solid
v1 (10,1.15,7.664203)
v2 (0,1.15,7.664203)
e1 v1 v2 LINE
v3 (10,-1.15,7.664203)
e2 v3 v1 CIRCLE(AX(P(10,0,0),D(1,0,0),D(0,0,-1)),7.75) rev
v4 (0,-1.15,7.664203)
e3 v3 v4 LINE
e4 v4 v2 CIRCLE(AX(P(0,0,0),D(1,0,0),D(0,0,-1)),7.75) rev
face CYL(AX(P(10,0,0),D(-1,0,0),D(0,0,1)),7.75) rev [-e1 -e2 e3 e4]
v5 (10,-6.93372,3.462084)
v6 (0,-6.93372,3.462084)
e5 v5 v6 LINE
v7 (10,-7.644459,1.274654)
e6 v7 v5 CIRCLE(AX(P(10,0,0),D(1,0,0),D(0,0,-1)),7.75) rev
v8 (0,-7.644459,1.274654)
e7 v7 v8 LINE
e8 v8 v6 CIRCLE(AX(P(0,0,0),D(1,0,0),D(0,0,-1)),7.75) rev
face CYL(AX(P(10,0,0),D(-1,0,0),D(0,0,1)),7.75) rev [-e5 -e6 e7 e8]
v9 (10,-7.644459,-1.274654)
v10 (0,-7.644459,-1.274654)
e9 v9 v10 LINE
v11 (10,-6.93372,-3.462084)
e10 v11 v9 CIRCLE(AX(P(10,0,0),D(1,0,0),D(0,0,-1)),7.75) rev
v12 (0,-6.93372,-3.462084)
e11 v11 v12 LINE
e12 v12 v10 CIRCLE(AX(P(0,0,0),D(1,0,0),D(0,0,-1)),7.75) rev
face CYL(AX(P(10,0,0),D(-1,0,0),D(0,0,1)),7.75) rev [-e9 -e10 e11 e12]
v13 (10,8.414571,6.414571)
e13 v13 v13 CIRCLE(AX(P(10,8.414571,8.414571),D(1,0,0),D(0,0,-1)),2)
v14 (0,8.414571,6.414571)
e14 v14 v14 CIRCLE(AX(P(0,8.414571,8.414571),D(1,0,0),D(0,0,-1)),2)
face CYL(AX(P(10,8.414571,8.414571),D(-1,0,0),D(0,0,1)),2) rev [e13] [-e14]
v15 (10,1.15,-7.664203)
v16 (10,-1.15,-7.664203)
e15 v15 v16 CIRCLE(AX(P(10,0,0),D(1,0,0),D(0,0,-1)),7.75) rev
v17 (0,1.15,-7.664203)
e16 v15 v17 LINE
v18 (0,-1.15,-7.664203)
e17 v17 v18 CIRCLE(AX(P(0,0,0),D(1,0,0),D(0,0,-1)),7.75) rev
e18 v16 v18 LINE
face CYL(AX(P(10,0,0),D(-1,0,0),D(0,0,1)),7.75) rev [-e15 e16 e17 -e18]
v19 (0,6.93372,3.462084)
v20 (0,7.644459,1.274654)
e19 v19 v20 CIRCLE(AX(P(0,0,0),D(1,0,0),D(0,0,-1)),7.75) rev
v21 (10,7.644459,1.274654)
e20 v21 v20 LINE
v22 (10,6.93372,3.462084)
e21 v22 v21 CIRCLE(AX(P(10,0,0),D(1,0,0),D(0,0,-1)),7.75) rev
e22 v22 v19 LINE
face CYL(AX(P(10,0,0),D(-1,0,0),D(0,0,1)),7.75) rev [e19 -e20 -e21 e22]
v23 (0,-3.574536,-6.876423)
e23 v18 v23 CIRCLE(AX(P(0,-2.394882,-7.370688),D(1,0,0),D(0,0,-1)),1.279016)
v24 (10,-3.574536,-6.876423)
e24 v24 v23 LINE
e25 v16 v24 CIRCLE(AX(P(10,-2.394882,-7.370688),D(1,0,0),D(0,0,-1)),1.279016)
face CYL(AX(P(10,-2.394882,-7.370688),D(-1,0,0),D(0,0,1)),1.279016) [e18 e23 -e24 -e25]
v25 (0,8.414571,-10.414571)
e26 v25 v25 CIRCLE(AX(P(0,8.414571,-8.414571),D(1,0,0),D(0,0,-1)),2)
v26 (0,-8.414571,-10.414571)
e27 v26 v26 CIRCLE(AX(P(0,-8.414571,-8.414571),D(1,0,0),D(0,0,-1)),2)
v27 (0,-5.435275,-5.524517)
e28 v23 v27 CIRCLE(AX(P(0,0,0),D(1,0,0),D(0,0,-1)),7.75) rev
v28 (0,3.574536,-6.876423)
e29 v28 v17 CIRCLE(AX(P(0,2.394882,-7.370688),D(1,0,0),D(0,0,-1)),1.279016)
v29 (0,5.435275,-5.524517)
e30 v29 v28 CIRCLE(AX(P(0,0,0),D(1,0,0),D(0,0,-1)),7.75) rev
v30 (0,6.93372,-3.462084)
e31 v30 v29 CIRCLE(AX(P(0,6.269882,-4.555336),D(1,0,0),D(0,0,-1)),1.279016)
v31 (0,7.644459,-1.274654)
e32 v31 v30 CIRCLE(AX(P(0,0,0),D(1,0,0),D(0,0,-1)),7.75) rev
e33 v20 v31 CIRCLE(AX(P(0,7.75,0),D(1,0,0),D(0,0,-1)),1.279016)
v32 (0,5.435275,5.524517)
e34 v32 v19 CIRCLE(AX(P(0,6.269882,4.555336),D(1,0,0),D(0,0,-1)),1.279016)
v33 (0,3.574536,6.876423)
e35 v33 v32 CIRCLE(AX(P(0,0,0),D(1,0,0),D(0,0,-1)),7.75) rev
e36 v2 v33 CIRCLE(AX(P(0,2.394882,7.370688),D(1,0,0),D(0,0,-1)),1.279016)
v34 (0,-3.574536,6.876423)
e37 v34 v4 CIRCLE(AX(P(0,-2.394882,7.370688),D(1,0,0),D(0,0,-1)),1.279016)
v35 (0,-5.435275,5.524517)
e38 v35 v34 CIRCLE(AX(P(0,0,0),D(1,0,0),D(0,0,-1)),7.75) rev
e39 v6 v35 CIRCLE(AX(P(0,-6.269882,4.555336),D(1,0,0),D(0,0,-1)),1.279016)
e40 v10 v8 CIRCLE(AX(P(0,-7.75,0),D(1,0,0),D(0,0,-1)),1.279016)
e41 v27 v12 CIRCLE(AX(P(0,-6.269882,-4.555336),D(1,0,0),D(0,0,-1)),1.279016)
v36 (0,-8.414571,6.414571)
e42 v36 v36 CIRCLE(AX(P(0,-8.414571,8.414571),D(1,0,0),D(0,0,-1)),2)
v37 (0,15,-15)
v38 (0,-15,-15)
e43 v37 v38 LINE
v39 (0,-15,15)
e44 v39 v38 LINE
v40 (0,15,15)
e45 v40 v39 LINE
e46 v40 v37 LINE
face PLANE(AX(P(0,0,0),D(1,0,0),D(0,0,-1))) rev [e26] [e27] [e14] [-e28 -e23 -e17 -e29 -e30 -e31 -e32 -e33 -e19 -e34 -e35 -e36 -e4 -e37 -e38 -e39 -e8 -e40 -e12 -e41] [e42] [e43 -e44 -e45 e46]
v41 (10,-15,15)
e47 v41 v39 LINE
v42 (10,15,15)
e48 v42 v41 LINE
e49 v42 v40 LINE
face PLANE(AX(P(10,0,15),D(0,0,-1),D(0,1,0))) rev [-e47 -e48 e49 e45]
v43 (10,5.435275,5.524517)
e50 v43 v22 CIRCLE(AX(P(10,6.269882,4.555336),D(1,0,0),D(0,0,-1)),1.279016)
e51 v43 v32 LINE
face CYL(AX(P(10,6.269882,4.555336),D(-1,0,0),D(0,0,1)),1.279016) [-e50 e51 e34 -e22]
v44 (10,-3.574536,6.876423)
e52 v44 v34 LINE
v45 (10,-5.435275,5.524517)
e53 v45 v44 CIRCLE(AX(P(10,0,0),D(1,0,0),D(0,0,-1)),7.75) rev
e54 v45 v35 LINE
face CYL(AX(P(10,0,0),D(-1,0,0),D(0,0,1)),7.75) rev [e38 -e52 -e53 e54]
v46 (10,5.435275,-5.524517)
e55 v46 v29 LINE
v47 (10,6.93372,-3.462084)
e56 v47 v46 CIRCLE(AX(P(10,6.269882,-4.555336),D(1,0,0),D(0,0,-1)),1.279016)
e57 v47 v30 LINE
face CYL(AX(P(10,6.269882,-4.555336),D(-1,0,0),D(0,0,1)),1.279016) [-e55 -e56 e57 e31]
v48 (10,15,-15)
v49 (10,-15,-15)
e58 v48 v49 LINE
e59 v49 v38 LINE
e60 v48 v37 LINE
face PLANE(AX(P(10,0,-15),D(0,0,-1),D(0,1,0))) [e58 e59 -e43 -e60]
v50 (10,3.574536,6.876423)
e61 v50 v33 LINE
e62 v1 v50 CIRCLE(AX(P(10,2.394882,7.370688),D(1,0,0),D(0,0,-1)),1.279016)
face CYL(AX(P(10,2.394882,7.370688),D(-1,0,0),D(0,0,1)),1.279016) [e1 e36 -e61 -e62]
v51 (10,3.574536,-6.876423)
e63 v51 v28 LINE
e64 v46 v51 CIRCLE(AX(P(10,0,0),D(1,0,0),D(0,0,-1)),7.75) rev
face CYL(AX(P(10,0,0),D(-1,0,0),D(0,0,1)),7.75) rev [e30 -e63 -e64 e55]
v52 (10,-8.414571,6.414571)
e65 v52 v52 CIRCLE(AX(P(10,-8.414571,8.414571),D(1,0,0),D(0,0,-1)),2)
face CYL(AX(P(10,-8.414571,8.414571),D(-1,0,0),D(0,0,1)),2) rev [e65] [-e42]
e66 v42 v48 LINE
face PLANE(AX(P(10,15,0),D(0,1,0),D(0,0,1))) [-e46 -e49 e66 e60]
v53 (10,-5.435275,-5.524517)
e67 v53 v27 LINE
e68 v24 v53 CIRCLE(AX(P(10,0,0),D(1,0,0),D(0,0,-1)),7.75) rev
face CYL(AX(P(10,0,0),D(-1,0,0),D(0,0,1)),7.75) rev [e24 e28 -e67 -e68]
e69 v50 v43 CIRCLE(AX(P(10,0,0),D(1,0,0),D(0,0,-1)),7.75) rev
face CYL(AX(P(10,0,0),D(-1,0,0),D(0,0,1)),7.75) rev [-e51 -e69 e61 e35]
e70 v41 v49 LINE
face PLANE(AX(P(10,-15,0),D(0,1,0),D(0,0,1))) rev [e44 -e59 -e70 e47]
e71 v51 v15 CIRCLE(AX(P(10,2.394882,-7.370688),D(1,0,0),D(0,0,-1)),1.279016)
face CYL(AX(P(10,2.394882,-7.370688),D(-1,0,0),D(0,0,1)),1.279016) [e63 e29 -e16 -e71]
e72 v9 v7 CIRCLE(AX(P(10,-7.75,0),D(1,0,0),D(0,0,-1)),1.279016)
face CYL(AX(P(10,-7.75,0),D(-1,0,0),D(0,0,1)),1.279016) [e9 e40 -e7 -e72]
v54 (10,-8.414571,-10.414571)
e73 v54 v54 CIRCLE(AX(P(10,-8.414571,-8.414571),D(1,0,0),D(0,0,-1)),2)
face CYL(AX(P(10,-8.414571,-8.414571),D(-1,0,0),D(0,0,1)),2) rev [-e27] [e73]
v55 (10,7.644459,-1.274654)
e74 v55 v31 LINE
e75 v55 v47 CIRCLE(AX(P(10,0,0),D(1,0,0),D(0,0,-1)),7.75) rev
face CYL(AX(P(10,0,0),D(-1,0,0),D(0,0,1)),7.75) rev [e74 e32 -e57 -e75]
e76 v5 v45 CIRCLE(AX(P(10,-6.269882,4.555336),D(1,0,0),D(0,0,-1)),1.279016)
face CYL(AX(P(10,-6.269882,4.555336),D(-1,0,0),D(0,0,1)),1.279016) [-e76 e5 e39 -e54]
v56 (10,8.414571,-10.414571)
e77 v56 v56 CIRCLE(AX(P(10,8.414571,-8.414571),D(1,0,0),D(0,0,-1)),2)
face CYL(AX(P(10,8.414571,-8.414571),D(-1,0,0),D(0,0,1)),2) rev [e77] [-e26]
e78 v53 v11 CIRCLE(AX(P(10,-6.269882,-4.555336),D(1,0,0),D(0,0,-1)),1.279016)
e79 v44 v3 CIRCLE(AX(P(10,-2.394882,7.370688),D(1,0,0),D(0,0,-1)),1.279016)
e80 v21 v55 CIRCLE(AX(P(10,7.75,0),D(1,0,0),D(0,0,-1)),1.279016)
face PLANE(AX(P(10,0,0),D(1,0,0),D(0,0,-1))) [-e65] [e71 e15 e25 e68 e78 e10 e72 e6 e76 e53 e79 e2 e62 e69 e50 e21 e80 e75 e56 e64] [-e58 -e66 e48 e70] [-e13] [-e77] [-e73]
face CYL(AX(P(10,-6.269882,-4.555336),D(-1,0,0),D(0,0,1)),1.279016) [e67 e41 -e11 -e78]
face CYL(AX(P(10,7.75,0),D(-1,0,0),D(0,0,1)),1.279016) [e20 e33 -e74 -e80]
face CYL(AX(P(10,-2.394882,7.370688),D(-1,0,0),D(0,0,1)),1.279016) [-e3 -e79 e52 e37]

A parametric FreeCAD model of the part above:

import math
import FreeCAD as App
import Part
import Sketcher

V = App.Vector
Q = App.Units.Quantity

doc = App.newDocument("Part")
body = doc.addObject("PartDesign::Body", "Body")

sketch1 = doc.addObject("Sketcher::SketchObject", "Sketch")
body.addObject(sketch1)
sketch1.AttachmentSupport = (doc.YZ_Plane, [""])
sketch1.MapMode = "FlatFace"
sketch1.addGeometry(Part.LineSegment(V(15, 15, 0), V(-15, 15, 0)), False)
sketch1.addGeometry(Part.LineSegment(V(-15, 15, 0), V(-15, -15, 0)), False)
sketch1.addGeometry(Part.LineSegment(V(-15, -15, 0), V(15, -15, 0)), False)
sketch1.addGeometry(Part.LineSegment(V(15, -15, 0), V(15, 15, 0)), False)
sketch1.addGeometry(Part.Circle(V(-8.4, 8.4, 0), V(0, 0, 1), 2), False)
sketch1.addGeometry(Part.Circle(V(-8.4, -8.4, 0), V(0, 0, 1), 2), False)
sketch1.addGeometry(Part.Circle(V(8.4, 8.4, 0), V(0, 0, 1), 2), False)
sketch1.addGeometry(Part.ArcOfCircle(Part.Circle(V(0, 0, 0), V(0, 0, 1), 7.8), math.radians(9.47), math.radians(26.53)), False)
sketch1.addGeometry(Part.ArcOfCircle(Part.Circle(V(7.8, 0, 0), V(0, 0, 1), 1.3), math.radians(95), math.radians(265)), False)
sketch1.addGeometry(Part.ArcOfCircle(Part.Circle(V(0, 0, 0), V(0, 0, 1), 7.8), math.radians(-26.53), math.radians(-9.47)), False)
sketch1.addGeometry(Part.ArcOfCircle(Part.Circle(V(6.3, -4.6, 0), V(0, 0, 1), 1.3), math.radians(59), math.radians(229)), False)
sketch1.addGeometry(Part.ArcOfCircle(Part.Circle(V(0, 0, 0), V(0, 0, 1), 7.8), math.radians(-62.53), math.radians(-45.47)), False)
sketch1.addGeometry(Part.ArcOfCircle(Part.Circle(V(2.4, -7.4, 0), V(0, 0, 1), 1.3), math.radians(23), math.radians(193)), False)
sketch1.addGeometry(Part.ArcOfCircle(Part.Circle(V(0, 0, 0), V(0, 0, 1), 7.8), math.radians(-98.53), math.radians(-81.47)), False)
sketch1.addGeometry(Part.ArcOfCircle(Part.Circle(V(-2.4, -7.4, 0), V(0, 0, 1), 1.3), math.radians(-13), math.radians(157)), False)
sketch1.addGeometry(Part.ArcOfCircle(Part.Circle(V(0, 0, 0), V(0, 0, 1), 7.8), math.radians(-134.53), math.radians(-117.47)), False)
sketch1.addGeometry(Part.ArcOfCircle(Part.Circle(V(-6.3, -4.6, 0), V(0, 0, 1), 1.3), math.radians(-49), math.radians(121)), False)
sketch1.addGeometry(Part.ArcOfCircle(Part.Circle(V(0, 0, 0), V(0, 0, 1), 7.8), math.radians(-170.53), math.radians(-153.47)), False)
sketch1.addGeometry(Part.ArcOfCircle(Part.Circle(V(-7.8, 0, 0), V(0, 0, 1), 1.3), math.radians(-85), math.radians(85)), False)
sketch1.addGeometry(Part.ArcOfCircle(Part.Circle(V(0, 0, 0), V(0, 0, 1), 7.8), math.radians(153.47), math.radians(170.53)), False)
sketch1.addGeometry(Part.ArcOfCircle(Part.Circle(V(-6.3, 4.6, 0), V(0, 0, 1), 1.3), math.radians(-121), math.radians(49)), False)
sketch1.addGeometry(Part.ArcOfCircle(Part.Circle(V(0, 0, 0), V(0, 0, 1), 7.8), math.radians(117.47), math.radians(134.53)), False)
sketch1.addGeometry(Part.ArcOfCircle(Part.Circle(V(-2.4, 7.4, 0), V(0, 0, 1), 1.3), math.radians(-157), math.radians(13)), False)
sketch1.addGeometry(Part.ArcOfCircle(Part.Circle(V(0, 0, 0), V(0, 0, 1), 7.8), math.radians(81.47), math.radians(98.53)), False)
sketch1.addGeometry(Part.ArcOfCircle(Part.Circle(V(2.4, 7.4, 0), V(0, 0, 1), 1.3), math.radians(167), math.radians(337)), False)
sketch1.addGeometry(Part.ArcOfCircle(Part.Circle(V(0, 0, 0), V(0, 0, 1), 7.8), math.radians(45.47), math.radians(62.53)), False)
sketch1.addGeometry(Part.ArcOfCircle(Part.Circle(V(6.3, 4.6, 0), V(0, 0, 1), 1.3), math.radians(131), math.radians(301)), False)
sketch1.addGeometry(Part.Circle(V(8.4, -8.4, 0), V(0, 0, 1), 2), False)
sketch1.addConstraint(Sketcher.Constraint("Coincident", 0, 2, 1, 1))
sketch1.addConstraint(Sketcher.Constraint("Coincident", 1, 2, 2, 1))
sketch1.addConstraint(Sketcher.Constraint("Coincident", 2, 2, 3, 1))
sketch1.addConstraint(Sketcher.Constraint("Coincident", 3, 2, 0, 1))
sketch1.addConstraint(Sketcher.Constraint("Coincident", 7, 1, 8, 1))
sketch1.addConstraint(Sketcher.Constraint("Coincident", 8, 2, 9, 2))
sketch1.addConstraint(Sketcher.Constraint("Coincident", 9, 1, 10, 1))
sketch1.addConstraint(Sketcher.Constraint("Coincident", 10, 2, 11, 2))
sketch1.addConstraint(Sketcher.Constraint("Coincident", 11, 1, 12, 1))
sketch1.addConstraint(Sketcher.Constraint("Coincident", 12, 2, 13, 2))
sketch1.addConstraint(Sketcher.Constraint("Coincident", 13, 1, 14, 1))
sketch1.addConstraint(Sketcher.Constraint("Coincident", 14, 2, 15, 2))
sketch1.addConstraint(Sketcher.Constraint("Coincident", 15, 1, 16, 1))
sketch1.addConstraint(Sketcher.Constraint("Coincident", 16, 2, 17, 2))
sketch1.addConstraint(Sketcher.Constraint("Coincident", 17, 1, 18, 1))
sketch1.addConstraint(Sketcher.Constraint("Coincident", 18, 2, 19, 2))
sketch1.addConstraint(Sketcher.Constraint("Coincident", 19, 1, 20, 1))
sketch1.addConstraint(Sketcher.Constraint("Coincident", 20, 2, 21, 2))
sketch1.addConstraint(Sketcher.Constraint("Coincident", 21, 1, 22, 1))
sketch1.addConstraint(Sketcher.Constraint("Coincident", 22, 2, 23, 2))
sketch1.addConstraint(Sketcher.Constraint("Coincident", 23, 1, 24, 1))
sketch1.addConstraint(Sketcher.Constraint("Coincident", 24, 2, 25, 2))
sketch1.addConstraint(Sketcher.Constraint("Coincident", 25, 1, 26, 1))
sketch1.addConstraint(Sketcher.Constraint("Coincident", 26, 2, 7, 2))
sketch1.addConstraint(Sketcher.Constraint("Horizontal", 0))
sketch1.addConstraint(Sketcher.Constraint("Vertical", 1))
sketch1.addConstraint(Sketcher.Constraint("Horizontal", 2))
sketch1.addConstraint(Sketcher.Constraint("Vertical", 3))
sketch1.addConstraint(Sketcher.Constraint("Coincident", 7, 3, -1, 1))
sketch1.addConstraint(Sketcher.Constraint("Coincident", 9, 3, -1, 1))
sketch1.addConstraint(Sketcher.Constraint("Coincident", 11, 3, -1, 1))
sketch1.addConstraint(Sketcher.Constraint("Coincident", 13, 3, -1, 1))
sketch1.addConstraint(Sketcher.Constraint("Coincident", 15, 3, -1, 1))
sketch1.addConstraint(Sketcher.Constraint("Coincident", 17, 3, -1, 1))
sketch1.addConstraint(Sketcher.Constraint("Coincident", 19, 3, -1, 1))
sketch1.addConstraint(Sketcher.Constraint("Coincident", 21, 3, -1, 1))
sketch1.addConstraint(Sketcher.Constraint("Coincident", 23, 3, -1, 1))
sketch1.addConstraint(Sketcher.Constraint("Coincident", 25, 3, -1, 1))
sketch1.addConstraint(Sketcher.Constraint("Equal", 4, 5))
sketch1.addConstraint(Sketcher.Constraint("Equal", 5, 6))
sketch1.addConstraint(Sketcher.Constraint("Equal", 7, 9))
sketch1.addConstraint(Sketcher.Constraint("Equal", 8, 10))
sketch1.addConstraint(Sketcher.Constraint("Equal", 9, 11))
sketch1.addConstraint(Sketcher.Constraint("Equal", 10, 12))
sketch1.addConstraint(Sketcher.Constraint("Equal", 11, 13))
sketch1.addConstraint(Sketcher.Constraint("Equal", 12, 14))
sketch1.addConstraint(Sketcher.Constraint("Equal", 13, 15))
sketch1.addConstraint(Sketcher.Constraint("Equal", 14, 16))
sketch1.addConstraint(Sketcher.Constraint("Equal", 15, 17))
sketch1.addConstraint(Sketcher.Constraint("Equal", 16, 18))
sketch1.addConstraint(Sketcher.Constraint("Equal", 17, 19))
sketch1.addConstraint(Sketcher.Constraint("Equal", 18, 20))
sketch1.addConstraint(Sketcher.Constraint("Equal", 19, 21))
sketch1.addConstraint(Sketcher.Constraint("Equal", 20, 22))
sketch1.addConstraint(Sketcher.Constraint("Equal", 21, 23))
sketch1.addConstraint(Sketcher.Constraint("Equal", 22, 24))
sketch1.addConstraint(Sketcher.Constraint("Equal", 23, 25))
sketch1.addConstraint(Sketcher.Constraint("Equal", 24, 26))
sketch1.addConstraint(Sketcher.Constraint("Equal", 6, 27))
sketch1.addConstraint(Sketcher.Constraint("Symmetric", 5, 3, 6, 3, -1, 1))
sketch1.addConstraint(Sketcher.Constraint("Symmetric", 8, 3, 18, 3, -1, 1))
sketch1.addConstraint(Sketcher.Constraint("Symmetric", 10, 3, 20, 3, -1, 1))
sketch1.addConstraint(Sketcher.Constraint("Symmetric", 12, 3, 22, 3, -1, 1))
sketch1.addConstraint(Sketcher.Constraint("Symmetric", 14, 3, 24, 3, -1, 1))
sketch1.addConstraint(Sketcher.Constraint("Symmetric", 16, 3, 26, 3, -1, 1))
sketch1.addConstraint(Sketcher.Constraint("Symmetric", 4, 3, 27, 3, -1, 1))
sketch1.addConstraint(Sketcher.Constraint("Symmetric", 0, 2, 2, 2, -1, 1))
sketch1.addConstraint(Sketcher.Constraint("Symmetric", 4, 3, 6, 3, -2))
sketch1.addConstraint(Sketcher.Constraint("Symmetric", 12, 3, 14, 3, -2))
sketch1.addConstraint(Sketcher.Constraint("Symmetric", 10, 3, 16, 3, -2))
sketch1.addConstraint(Sketcher.Constraint("PointOnObject", 8, 3, -1))
sketch1.addConstraint(Sketcher.Constraint("Equal", 2, 1))
sketch1.addConstraint(Sketcher.Constraint("Diameter", 4, Q("4 mm")))
sketch1.addConstraint(Sketcher.Constraint("DistanceX", 0, 2, 0, 1, Q("30 mm")))
sketch1.addConstraint(Sketcher.Constraint("Radius", 7, Q("7.75 mm")))
sketch1.addConstraint(Sketcher.Constraint("DistanceX", 13, 1, 12, 2, Q("2.3 mm")))
sketch1.addConstraint(Sketcher.Constraint("DistanceX", -1, 1, 8, 3, Q("7.75 mm")))
sketch1.addConstraint(Sketcher.Constraint("Radius", 8, Q("1.279016 mm")))
sketch1.addConstraint(Sketcher.Constraint("DistanceX", 12, 3, 10, 3, Q("3.875 mm")))
sketch1.addConstraint(Sketcher.Constraint("DistanceX", 4, 3, -1, 1, Q("8.414571 mm")))
sketch1.addConstraint(Sketcher.Constraint("DistanceY", -1, 1, 4, 3, Q("8.414571 mm")))
sketch1.addConstraint(Sketcher.Constraint("DistanceX", -1, 1, 10, 3, Q("6.269882 mm")))
sketch1.addConstraint(Sketcher.Constraint("DistanceX", -1, 1, 9, 1, Q("6.93372 mm")))
pad1 = doc.addObject("PartDesign::Pad", "Pad")
body.addObject(pad1)
pad1.Profile = sketch1
pad1.Length = 10

doc.recompute()
